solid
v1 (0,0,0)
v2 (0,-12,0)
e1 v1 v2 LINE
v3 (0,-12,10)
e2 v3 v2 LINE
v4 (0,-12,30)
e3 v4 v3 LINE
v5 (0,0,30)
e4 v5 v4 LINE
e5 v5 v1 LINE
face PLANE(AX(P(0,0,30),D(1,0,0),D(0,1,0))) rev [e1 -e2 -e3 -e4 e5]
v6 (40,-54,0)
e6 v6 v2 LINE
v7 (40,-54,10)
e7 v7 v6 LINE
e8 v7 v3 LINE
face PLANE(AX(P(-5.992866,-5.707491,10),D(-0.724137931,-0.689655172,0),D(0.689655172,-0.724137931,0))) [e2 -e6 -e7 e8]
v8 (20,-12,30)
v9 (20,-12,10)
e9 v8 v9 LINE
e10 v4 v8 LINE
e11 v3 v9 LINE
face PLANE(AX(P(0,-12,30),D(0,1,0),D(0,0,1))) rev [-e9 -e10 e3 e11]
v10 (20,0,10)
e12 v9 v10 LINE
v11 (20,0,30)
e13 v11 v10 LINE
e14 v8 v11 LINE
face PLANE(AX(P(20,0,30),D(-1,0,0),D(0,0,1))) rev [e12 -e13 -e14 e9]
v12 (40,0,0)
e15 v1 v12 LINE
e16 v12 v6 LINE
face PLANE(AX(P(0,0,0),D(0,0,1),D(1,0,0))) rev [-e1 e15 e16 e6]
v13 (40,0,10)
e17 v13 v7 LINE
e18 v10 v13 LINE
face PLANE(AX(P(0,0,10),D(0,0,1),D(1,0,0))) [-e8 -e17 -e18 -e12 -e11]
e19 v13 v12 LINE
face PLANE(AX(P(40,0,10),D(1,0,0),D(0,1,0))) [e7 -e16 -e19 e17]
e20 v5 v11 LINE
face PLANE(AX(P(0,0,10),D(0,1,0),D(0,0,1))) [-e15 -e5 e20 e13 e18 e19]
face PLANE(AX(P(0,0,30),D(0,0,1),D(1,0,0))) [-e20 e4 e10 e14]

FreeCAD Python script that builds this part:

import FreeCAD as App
import Part
import Sketcher

V = App.Vector
Q = App.Units.Quantity


def add_polygon(sketch, points):
    """Adds a closed chain of lines whose ends are joined by coincident constraints."""
    first, n = sketch.GeometryCount, len(points)
    for a, b in zip(points, points[1:] + points[:1]):
        sketch.addGeometry(Part.LineSegment(App.Vector(*a, 0), App.Vector(*b, 0)), False)
    for i in range(n):
        sketch.addConstraint(Sketcher.Constraint("Coincident", first + i, 2, first + (i + 1) % n, 1))

doc = App.newDocument("Part")
params = doc.addObject("Spreadsheet::Sheet", "Params")
for row, (alias, value) in enumerate([
    ("sketch1_width", "20 mm"),
    ("sketch1_height", "54 mm"),
    ("sketch1_height2", "12 mm"),
    ("pad1_length", "10 mm"),
    ("sketch2_width", "20 mm"),
    ("sketch2_height", "12 mm"),
    ("pad2_length", "30 mm"),
], start=1):
    params.set(f"A{row}", alias)
    params.set(f"B{row}", "=" + value)
    params.setAlias(f"B{row}", alias)

body = doc.addObject("PartDesign::Body", "Body")

sketch1 = doc.addObject("Sketcher::SketchObject", "Sketch")
body.addObject(sketch1)
sketch1.AttachmentSupport = (doc.XY_Plane, [""])
sketch1.MapMode = "FlatFace"
add_polygon(sketch1, [(20, -12), (0, -12), (40, -54), (40, 0), (20, 0)])
sketch1.addConstraint(Sketcher.Constraint("Horizontal", 0))
sketch1.addConstraint(Sketcher.Constraint("Vertical", 2))
sketch1.addConstraint(Sketcher.Constraint("Horizontal", 3))
sketch1.addConstraint(Sketcher.Constraint("Vertical", 4))
sketch1.addConstraint(Sketcher.Constraint("PointOnObject", 0, 2, -2))
sketch1.addConstraint(Sketcher.Constraint("PointOnObject", 2, 2, -1))
sketch1.addConstraint(Sketcher.Constraint("Equal", 0, 3))
sketch1.addConstraint(Sketcher.Constraint("DistanceX", 0, 2, 0, 1, Q("20 mm")))
sketch1.addConstraint(Sketcher.Constraint("DistanceY", 2, 1, 2, 2, Q("54 mm")))
sketch1.addConstraint(Sketcher.Constraint("DistanceY", 4, 2, 4, 1, Q("12 mm")))
sketch1.setExpression("Constraints[12]", "Params.sketch1_width")
sketch1.setExpression("Constraints[13]", "Params.sketch1_height")
sketch1.setExpression("Constraints[14]", "Params.sketch1_height2")
pad1 = doc.addObject("PartDesign::Pad", "Pad")
body.addObject(pad1)
pad1.Profile = sketch1
pad1.setExpression("Length", "Params.pad1_length")

sketch2 = doc.addObject("Sketcher::SketchObject", "Sketch001")
body.addObject(sketch2)
sketch2.AttachmentSupport = (doc.XY_Plane, [""])
sketch2.MapMode = "FlatFace"
add_polygon(sketch2, [(0, 0), (0, -12), (20, -12), (20, 0)])
sketch2.addConstraint(Sketcher.Constraint("Vertical", 0))
sketch2.addConstraint(Sketcher.Constraint("Horizontal", 1))
sketch2.addConstraint(Sketcher.Constraint("Vertical", 2))
sketch2.addConstraint(Sketcher.Constraint("Horizontal", 3))
sketch2.addConstraint(Sketcher.Constraint("Coincident", 3, 2, -1, 1))
sketch2.addConstraint(Sketcher.Constraint("DistanceX", 1, 1, 1, 2, Q("20 mm")))
sketch2.addConstraint(Sketcher.Constraint("DistanceY", 0, 2, 0, 1, Q("12 mm")))
sketch2.setExpression("Constraints[9]", "Params.sketch2_width")
sketch2.setExpression("Constraints[10]", "Params.sketch2_height")
pad2 = doc.addObject("PartDesign::Pad", "Pad001")
body.addObject(pad2)
pad2.Profile = sketch2
pad2.setExpression("Length", "Params.pad2_length")

doc.recompute()
